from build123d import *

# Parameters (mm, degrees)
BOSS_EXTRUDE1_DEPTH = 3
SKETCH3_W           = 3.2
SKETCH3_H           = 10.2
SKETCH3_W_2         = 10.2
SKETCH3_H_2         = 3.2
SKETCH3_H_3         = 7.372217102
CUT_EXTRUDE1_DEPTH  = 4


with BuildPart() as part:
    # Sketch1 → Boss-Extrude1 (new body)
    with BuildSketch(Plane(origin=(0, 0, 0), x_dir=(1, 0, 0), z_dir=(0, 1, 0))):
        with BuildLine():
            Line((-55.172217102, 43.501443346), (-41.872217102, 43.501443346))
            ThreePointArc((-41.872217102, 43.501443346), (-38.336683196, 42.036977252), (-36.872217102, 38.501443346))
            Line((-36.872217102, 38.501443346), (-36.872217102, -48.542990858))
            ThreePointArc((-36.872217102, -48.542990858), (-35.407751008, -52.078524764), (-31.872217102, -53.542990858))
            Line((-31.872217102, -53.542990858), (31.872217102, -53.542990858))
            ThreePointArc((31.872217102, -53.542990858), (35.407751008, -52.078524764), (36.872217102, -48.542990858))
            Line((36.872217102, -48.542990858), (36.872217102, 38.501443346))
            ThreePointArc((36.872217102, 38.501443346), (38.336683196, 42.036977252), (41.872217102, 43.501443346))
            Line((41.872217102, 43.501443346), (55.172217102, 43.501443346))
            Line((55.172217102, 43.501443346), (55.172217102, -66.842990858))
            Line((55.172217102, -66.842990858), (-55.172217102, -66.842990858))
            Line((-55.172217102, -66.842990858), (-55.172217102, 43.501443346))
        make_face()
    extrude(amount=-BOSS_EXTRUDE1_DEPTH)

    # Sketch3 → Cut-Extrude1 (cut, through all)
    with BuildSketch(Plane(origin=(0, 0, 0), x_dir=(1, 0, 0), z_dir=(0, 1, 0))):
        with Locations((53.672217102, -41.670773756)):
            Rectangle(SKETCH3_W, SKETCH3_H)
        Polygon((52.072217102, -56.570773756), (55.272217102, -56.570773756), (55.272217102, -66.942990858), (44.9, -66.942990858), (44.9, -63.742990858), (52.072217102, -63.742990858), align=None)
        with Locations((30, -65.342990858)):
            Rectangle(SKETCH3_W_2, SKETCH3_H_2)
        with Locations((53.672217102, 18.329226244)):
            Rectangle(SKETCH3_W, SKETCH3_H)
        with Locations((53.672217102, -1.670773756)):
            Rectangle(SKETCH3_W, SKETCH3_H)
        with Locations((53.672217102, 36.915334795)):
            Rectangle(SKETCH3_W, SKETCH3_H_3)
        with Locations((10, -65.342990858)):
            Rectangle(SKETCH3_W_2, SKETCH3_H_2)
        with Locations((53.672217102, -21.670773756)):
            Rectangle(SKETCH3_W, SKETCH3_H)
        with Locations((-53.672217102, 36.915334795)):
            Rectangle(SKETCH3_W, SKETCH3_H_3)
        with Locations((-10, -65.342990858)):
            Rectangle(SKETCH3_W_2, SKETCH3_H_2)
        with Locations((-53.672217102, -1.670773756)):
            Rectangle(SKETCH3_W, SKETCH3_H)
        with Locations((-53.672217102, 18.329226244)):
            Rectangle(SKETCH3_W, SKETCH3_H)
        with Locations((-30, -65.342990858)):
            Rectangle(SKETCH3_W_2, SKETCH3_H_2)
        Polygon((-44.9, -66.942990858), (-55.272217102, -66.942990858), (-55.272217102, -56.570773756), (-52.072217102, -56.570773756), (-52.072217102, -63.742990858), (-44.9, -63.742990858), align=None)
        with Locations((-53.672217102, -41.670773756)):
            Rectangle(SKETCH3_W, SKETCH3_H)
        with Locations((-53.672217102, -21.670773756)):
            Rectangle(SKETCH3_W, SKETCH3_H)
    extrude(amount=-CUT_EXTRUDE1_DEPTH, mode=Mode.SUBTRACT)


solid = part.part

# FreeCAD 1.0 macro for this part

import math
import FreeCAD as App
import Part
import Sketcher
from FreeCAD import Vector
Q = App.Units.Quantity


def add_polygon(sketch, points):
    """Adds a closed chain of lines whose ends are joined by coincident constraints."""
    first, n = sketch.GeometryCount, len(points)
    for a, b in zip(points, points[1:] + points[:1]):
        sketch.addGeometry(Part.LineSegment(App.Vector(*a, 0), App.Vector(*b, 0)), False)
    for i in range(n):
        sketch.addConstraint(Sketcher.Constraint("Coincident", first + i, 2, first + (i + 1) % n, 1))

doc = App.newDocument("Part")
body = doc.addObject("PartDesign::Body", "Body")

# Sketch on XZ plane
sketch1 = body.newObject("Sketcher::SketchObject", "Sketch")
sketch1.AttachmentSupport = (doc.getObject("XZ_Plane"), [""])
sketch1.MapMode = "FlatFace"
sketch1.addGeometry([
    Part.LineSegment(Vector(-42, -44, 0), Vector(-55, -44, 0)),  # 0
    Part.LineSegment(Vector(-55, -44, 0), Vector(-55, 67, 0)),  # 1
    Part.LineSegment(Vector(-55, 67, 0), Vector(55, 67, 0)),  # 2
    Part.LineSegment(Vector(55, 67, 0), Vector(55, -44, 0)),  # 3
    Part.LineSegment(Vector(55, -44, 0), Vector(42, -44, 0)),  # 4
    Part.ArcOfCircle(Part.Circle(Vector(42, -39, 0), Vector(0, 0, 1), 5), math.radians(180), math.radians(270)),  # 5
    Part.LineSegment(Vector(37, -39, 0), Vector(37, 49, 0)),  # 6
    Part.ArcOfCircle(Part.Circle(Vector(32, 49, 0), Vector(0, 0, 1), 5), math.radians(0), math.radians(90)),  # 7
    Part.LineSegment(Vector(32, 54, 0), Vector(-32, 54, 0)),  # 8
    Part.ArcOfCircle(Part.Circle(Vector(-32, 49, 0), Vector(0, 0, 1), 5), math.radians(90), math.radians(180)),  # 9
    Part.LineSegment(Vector(-37, 49, 0), Vector(-37, -39, 0)),  # 10
    Part.ArcOfCircle(Part.Circle(Vector(-42, -39, 0), Vector(0, 0, 1), 5), math.radians(-90), math.radians(0)),  # 11
], False)
sketch1.addConstraint([
    Sketcher.Constraint("Coincident", 0, 2, 1, 1),
    Sketcher.Constraint("Coincident", 1, 2, 2, 1),
    Sketcher.Constraint("Coincident", 2, 2, 3, 1),
    Sketcher.Constraint("Coincident", 3, 2, 4, 1),
    Sketcher.Constraint("Tangent", 4, 2, 5, 2),
    Sketcher.Constraint("Tangent", 5, 1, 6, 1),
    Sketcher.Constraint("Tangent", 6, 2, 7, 1),
    Sketcher.Constraint("Tangent", 7, 2, 8, 1),
    Sketcher.Constraint("Tangent", 8, 2, 9, 1),
    Sketcher.Constraint("Tangent", 9, 2, 10, 1),
    Sketcher.Constraint("Tangent", 10, 2, 11, 2),
    Sketcher.Constraint("Tangent", 11, 1, 0, 1),
    Sketcher.Constraint("Horizontal", 0),
    Sketcher.Constraint("Vertical", 1),
    Sketcher.Constraint("Horizontal", 2),
    Sketcher.Constraint("Vertical", 3),
    Sketcher.Constraint("Horizontal", 4),
    Sketcher.Constraint("Vertical", 6),
    Sketcher.Constraint("Horizontal", 8),
    Sketcher.Constraint("Vertical", 10),
    Sketcher.Constraint("Equal", 5, 7),
    Sketcher.Constraint("Equal", 7, 9),
    Sketcher.Constraint("Equal", 9, 11),
    Sketcher.Constraint("Symmetric", 5, 3, 11, 3, -2),
    Sketcher.Constraint("Equal", 0, 4),
    Sketcher.Constraint("Equal", 2, 1),
    Sketcher.Constraint("Radius", 5, Q("5 mm")),
    Sketcher.Constraint("DistanceX", 0, 2, 0, 1, Q("13.3 mm")),
    Sketcher.Constraint("DistanceY", 9, 3, 1, 2, Q("18.3 mm")),
    Sketcher.Constraint("DistanceX", 2, 1, 2, 2, Q("110.344434 mm")),
    Sketcher.Constraint("DistanceY", -1, 1, 7, 3, Q("48.542991 mm")),
])
pad1 = body.newObject("PartDesign::Pad", "Pad")
pad1.Profile = sketch1
pad1.Length = 3

# Sketch on XZ plane
sketch2 = body.newObject("Sketcher::SketchObject", "Sketch001")
sketch2.AttachmentSupport = (doc.getObject("XZ_Plane"), [""])
sketch2.MapMode = "FlatFace"
add_polygon(sketch2, [(52.1, 36.6), (52.1, 46.8), (55.3, 46.8), (55.3, 36.6)])  # lines 0-3
add_polygon(sketch2, [(55.3, 56.6), (52.1, 56.6), (52.1, 63.7), (44.9, 63.7), (44.9, 66.9), (55.3, 66.9)])  # lines 4-9
add_polygon(sketch2, [(24.9, 63.7), (24.9, 66.9), (35.1, 66.9), (35.1, 63.7)])  # lines 10-13
add_polygon(sketch2, [(52.1, -23.4), (52.1, -13.2), (55.3, -13.2), (55.3, -23.4)])  # lines 14-17
add_polygon(sketch2, [(52.1, -3.4), (52.1, 6.8), (55.3, 6.8), (55.3, -3.4)])  # lines 18-21
add_polygon(sketch2, [(52.1, -40.6), (52.1, -33.2), (55.3, -33.2), (55.3, -40.6)])  # lines 22-25
add_polygon(sketch2, [(4.9, 63.7), (4.9, 66.9), (15.1, 66.9), (15.1, 63.7)])  # lines 26-29
add_polygon(sketch2, [(52.1, 16.6), (52.1, 26.8), (55.3, 26.8), (55.3, 16.6)])  # lines 30-33
add_polygon(sketch2, [(-55.3, -40.6), (-55.3, -33.2), (-52.1, -33.2), (-52.1, -40.6)])  # lines 34-37
add_polygon(sketch2, [(-15.1, 63.7), (-15.1, 66.9), (-4.9, 66.9), (-4.9, 63.7)])  # lines 38-41
add_polygon(sketch2, [(-55.3, -3.4), (-55.3, 6.8), (-52.1, 6.8), (-52.1, -3.4)])  # lines 42-45
add_polygon(sketch2, [(-55.3, -23.4), (-55.3, -13.2), (-52.1, -13.2), (-52.1, -23.4)])  # lines 46-49
add_polygon(sketch2, [(-35.1, 63.7), (-35.1, 66.9), (-24.9, 66.9), (-24.9, 63.7)])  # lines 50-53
add_polygon(sketch2, [(-55.3, 66.9), (-44.9, 66.9), (-44.9, 63.7), (-52.1, 63.7), (-52.1, 56.6), (-55.3, 56.6)])  # lines 54-59
add_polygon(sketch2, [(-55.3, 36.6), (-55.3, 46.8), (-52.1, 46.8), (-52.1, 36.6)])  # lines 60-63
add_polygon(sketch2, [(-55.3, 16.6), (-55.3, 26.8), (-52.1, 26.8), (-52.1, 16.6)])  # lines 64-67
sketch2.addConstraint([
    Sketcher.Constraint("Vertical", 0),
    Sketcher.Constraint("Horizontal", 1),
    Sketcher.Constraint("Vertical", 2),
    Sketcher.Constraint("Horizontal", 3),
    Sketcher.Constraint("Horizontal", 4),
    Sketcher.Constraint("Vertical", 5),
    Sketcher.Constraint("Horizontal", 6),
    Sketcher.Constraint("Vertical", 7),
    Sketcher.Constraint("Horizontal", 8),
    Sketcher.Constraint("Vertical", 9),
    Sketcher.Constraint("Vertical", 10),
    Sketcher.Constraint("Horizontal", 11),
    Sketcher.Constraint("Vertical", 12),
    Sketcher.Constraint("Horizontal", 13),
    Sketcher.Constraint("Vertical", 14),
    Sketcher.Constraint("Horizontal", 15),
    Sketcher.Constraint("Vertical", 16),
    Sketcher.Constraint("Horizontal", 17),
    Sketcher.Constraint("Vertical", 18),
    Sketcher.Constraint("Horizontal", 19),
    Sketcher.Constraint("Vertical", 20),
    Sketcher.Constraint("Horizontal", 21),
    Sketcher.Constraint("Vertical", 22),
    Sketcher.Constraint("Horizontal", 23),
    Sketcher.Constraint("Vertical", 24),
    Sketcher.Constraint("Horizontal", 25),
    Sketcher.Constraint("Vertical", 26),
    Sketcher.Constraint("Horizontal", 27),
    Sketcher.Constraint("Vertical", 28),
    Sketcher.Constraint("Horizontal", 29),
    Sketcher.Constraint("Vertical", 30),
    Sketcher.Constraint("Horizontal", 31),
    Sketcher.Constraint("Vertical", 32),
    Sketcher.Constraint("Horizontal", 33),
    Sketcher.Constraint("Vertical", 34),
    Sketcher.Constraint("Horizontal", 35),
    Sketcher.Constraint("Vertical", 36),
    Sketcher.Constraint("Horizontal", 37),
    Sketcher.Constraint("Vertical", 38),
    Sketcher.Constraint("Horizontal", 39),
    Sketcher.Constraint("Vertical", 40),
    Sketcher.Constraint("Horizontal", 41),
    Sketcher.Constraint("Vertical", 42),
    Sketcher.Constraint("Horizontal", 43),
    Sketcher.Constraint("Vertical", 44),
    Sketcher.Constraint("Horizontal", 45),
    Sketcher.Constraint("Vertical", 46),
    Sketcher.Constraint("Horizontal", 47),
    Sketcher.Constraint("Vertical", 48),
    Sketcher.Constraint("Horizontal", 49),
    Sketcher.Constraint("Vertical", 50),
    Sketcher.Constraint("Horizontal", 51),
    Sketcher.Constraint("Vertical", 52),
    Sketcher.Constraint("Horizontal", 53),
    Sketcher.Constraint("Horizontal", 54),
    Sketcher.Constraint("Vertical", 55),
    Sketcher.Constraint("Horizontal", 56),
    Sketcher.Constraint("Vertical", 57),
    Sketcher.Constraint("Horizontal", 58),
    Sketcher.Constraint("Vertical", 59),
    Sketcher.Constraint("Vertical", 60),
    Sketcher.Constraint("Horizontal", 61),
    Sketcher.Constraint("Vertical", 62),
    Sketcher.Constraint("Horizontal", 63),
    Sketcher.Constraint("Vertical", 64),
    Sketcher.Constraint("Horizontal", 65),
    Sketcher.Constraint("Vertical", 66),
    Sketcher.Constraint("Horizontal", 67),
    Sketcher.Constraint("Symmetric", 23, 2, 34, 2, -2),
    Sketcher.Constraint("Symmetric", 25, 2, 36, 2, -2),
    Sketcher.Constraint("Symmetric", 27, 2, 38, 2, -2),
    Sketcher.Constraint("Symmetric", 29, 2, 40, 2, -2),
    Sketcher.Constraint("Symmetric", 19, 2, 42, 2, -2),
    Sketcher.Constraint("Symmetric", 21, 2, 44, 2, -2),
    Sketcher.Constraint("Symmetric", 15, 2, 46, 2, -2),
    Sketcher.Constraint("Symmetric", 17, 2, 48, 2, -2),
    Sketcher.Constraint("Symmetric", 11, 2, 50, 2, -2),
    Sketcher.Constraint("Symmetric", 13, 2, 52, 2, -2),
    Sketcher.Constraint("Symmetric", 7, 2, 54, 2, -2),
    Sketcher.Constraint("Symmetric", 5, 2, 56, 2, -2),
    Sketcher.Constraint("Symmetric", 9, 2, 58, 2, -2),
    Sketcher.Constraint("Symmetric", 1, 2, 60, 2, -2),
    Sketcher.Constraint("Symmetric", 3, 2, 62, 2, -2),
    Sketcher.Constraint("Symmetric", 31, 2, 64, 2, -2),
    Sketcher.Constraint("Symmetric", 33, 2, 66, 2, -2),
    Sketcher.Constraint("Horizontal", 8, 2, 10, 2),
    Sketcher.Constraint("Horizontal", 6, 2, 12, 2),
    Sketcher.Constraint("Horizontal", 11, 2, 26, 2),
    Sketcher.Constraint("Horizontal", 13, 2, 28, 2),
    Sketcher.Constraint("Vertical", 3, 2, 4, 2),
    Sketcher.Constraint("Vertical", 2, 2, 8, 2),
    Sketcher.Constraint("Vertical", 5, 2, 14, 2),
    Sketcher.Constraint("Vertical", 9, 2, 15, 2),
    Sketcher.Constraint("Vertical", 17, 2, 18, 2),
    Sketcher.Constraint("Vertical", 16, 2, 19, 2),
    Sketcher.Constraint("Vertical", 21, 2, 22, 2),
    Sketcher.Constraint("Vertical", 20, 2, 23, 2),
    Sketcher.Constraint("Vertical", 25, 2, 30, 2),
    Sketcher.Constraint("Vertical", 24, 2, 31, 2),
    Sketcher.Constraint("Equal", 13, 27),
    Sketcher.Constraint("Equal", 53, 0),
    Sketcher.Constraint("Equal", 56, 5),
    Sketcher.Constraint("Equal", 67, 7),
    Sketcher.Constraint("Equal", 2, 14),
    Sketcher.Constraint("Equal", 16, 18),
    Sketcher.Constraint("Equal", 20, 30),
    Sketcher.Constraint("DistanceX", 1, 1, 1, 2, Q("3.2 mm")),
    Sketcher.Constraint("DistanceX", 11, 1, 11, 2, Q("10.2 mm")),
    Sketcher.Constraint("DistanceX", -1, 1, 6, 2, Q("44.9 mm")),
    Sketcher.Constraint("DistanceX", -1, 1, 10, 2, Q("24.9 mm")),
    Sketcher.Constraint("DistanceX", -1, 1, 26, 2, Q("4.9 mm")),
    Sketcher.Constraint("DistanceX", 6, 2, 6, 1, Q("7.172217 mm")),
    Sketcher.Constraint("DistanceY", 22, 1, 22, 2, Q("7.372217 mm")),
    Sketcher.Constraint("DistanceY", -1, 1, 5, 2, Q("63.742991 mm")),
    Sketcher.Constraint("DistanceY", -1, 1, 0, 2, Q("46.770774 mm")),
    Sketcher.Constraint("DistanceY", 14, 2, -1, 1, Q("13.229226 mm")),
    Sketcher.Constraint("DistanceY", -1, 1, 18, 2, Q("6.770774 mm")),
    Sketcher.Constraint("DistanceY", 22, 2, -1, 1, Q("33.229226 mm")),
    Sketcher.Constraint("DistanceY", -1, 1, 30, 2, Q("26.770774 mm")),
])
pocket1 = body.newObject("PartDesign::Pocket", "Pocket")
pocket1.Profile = sketch2
pocket1.Type = "ThroughAll"
pocket1.Reversed = True

doc.recompute()
